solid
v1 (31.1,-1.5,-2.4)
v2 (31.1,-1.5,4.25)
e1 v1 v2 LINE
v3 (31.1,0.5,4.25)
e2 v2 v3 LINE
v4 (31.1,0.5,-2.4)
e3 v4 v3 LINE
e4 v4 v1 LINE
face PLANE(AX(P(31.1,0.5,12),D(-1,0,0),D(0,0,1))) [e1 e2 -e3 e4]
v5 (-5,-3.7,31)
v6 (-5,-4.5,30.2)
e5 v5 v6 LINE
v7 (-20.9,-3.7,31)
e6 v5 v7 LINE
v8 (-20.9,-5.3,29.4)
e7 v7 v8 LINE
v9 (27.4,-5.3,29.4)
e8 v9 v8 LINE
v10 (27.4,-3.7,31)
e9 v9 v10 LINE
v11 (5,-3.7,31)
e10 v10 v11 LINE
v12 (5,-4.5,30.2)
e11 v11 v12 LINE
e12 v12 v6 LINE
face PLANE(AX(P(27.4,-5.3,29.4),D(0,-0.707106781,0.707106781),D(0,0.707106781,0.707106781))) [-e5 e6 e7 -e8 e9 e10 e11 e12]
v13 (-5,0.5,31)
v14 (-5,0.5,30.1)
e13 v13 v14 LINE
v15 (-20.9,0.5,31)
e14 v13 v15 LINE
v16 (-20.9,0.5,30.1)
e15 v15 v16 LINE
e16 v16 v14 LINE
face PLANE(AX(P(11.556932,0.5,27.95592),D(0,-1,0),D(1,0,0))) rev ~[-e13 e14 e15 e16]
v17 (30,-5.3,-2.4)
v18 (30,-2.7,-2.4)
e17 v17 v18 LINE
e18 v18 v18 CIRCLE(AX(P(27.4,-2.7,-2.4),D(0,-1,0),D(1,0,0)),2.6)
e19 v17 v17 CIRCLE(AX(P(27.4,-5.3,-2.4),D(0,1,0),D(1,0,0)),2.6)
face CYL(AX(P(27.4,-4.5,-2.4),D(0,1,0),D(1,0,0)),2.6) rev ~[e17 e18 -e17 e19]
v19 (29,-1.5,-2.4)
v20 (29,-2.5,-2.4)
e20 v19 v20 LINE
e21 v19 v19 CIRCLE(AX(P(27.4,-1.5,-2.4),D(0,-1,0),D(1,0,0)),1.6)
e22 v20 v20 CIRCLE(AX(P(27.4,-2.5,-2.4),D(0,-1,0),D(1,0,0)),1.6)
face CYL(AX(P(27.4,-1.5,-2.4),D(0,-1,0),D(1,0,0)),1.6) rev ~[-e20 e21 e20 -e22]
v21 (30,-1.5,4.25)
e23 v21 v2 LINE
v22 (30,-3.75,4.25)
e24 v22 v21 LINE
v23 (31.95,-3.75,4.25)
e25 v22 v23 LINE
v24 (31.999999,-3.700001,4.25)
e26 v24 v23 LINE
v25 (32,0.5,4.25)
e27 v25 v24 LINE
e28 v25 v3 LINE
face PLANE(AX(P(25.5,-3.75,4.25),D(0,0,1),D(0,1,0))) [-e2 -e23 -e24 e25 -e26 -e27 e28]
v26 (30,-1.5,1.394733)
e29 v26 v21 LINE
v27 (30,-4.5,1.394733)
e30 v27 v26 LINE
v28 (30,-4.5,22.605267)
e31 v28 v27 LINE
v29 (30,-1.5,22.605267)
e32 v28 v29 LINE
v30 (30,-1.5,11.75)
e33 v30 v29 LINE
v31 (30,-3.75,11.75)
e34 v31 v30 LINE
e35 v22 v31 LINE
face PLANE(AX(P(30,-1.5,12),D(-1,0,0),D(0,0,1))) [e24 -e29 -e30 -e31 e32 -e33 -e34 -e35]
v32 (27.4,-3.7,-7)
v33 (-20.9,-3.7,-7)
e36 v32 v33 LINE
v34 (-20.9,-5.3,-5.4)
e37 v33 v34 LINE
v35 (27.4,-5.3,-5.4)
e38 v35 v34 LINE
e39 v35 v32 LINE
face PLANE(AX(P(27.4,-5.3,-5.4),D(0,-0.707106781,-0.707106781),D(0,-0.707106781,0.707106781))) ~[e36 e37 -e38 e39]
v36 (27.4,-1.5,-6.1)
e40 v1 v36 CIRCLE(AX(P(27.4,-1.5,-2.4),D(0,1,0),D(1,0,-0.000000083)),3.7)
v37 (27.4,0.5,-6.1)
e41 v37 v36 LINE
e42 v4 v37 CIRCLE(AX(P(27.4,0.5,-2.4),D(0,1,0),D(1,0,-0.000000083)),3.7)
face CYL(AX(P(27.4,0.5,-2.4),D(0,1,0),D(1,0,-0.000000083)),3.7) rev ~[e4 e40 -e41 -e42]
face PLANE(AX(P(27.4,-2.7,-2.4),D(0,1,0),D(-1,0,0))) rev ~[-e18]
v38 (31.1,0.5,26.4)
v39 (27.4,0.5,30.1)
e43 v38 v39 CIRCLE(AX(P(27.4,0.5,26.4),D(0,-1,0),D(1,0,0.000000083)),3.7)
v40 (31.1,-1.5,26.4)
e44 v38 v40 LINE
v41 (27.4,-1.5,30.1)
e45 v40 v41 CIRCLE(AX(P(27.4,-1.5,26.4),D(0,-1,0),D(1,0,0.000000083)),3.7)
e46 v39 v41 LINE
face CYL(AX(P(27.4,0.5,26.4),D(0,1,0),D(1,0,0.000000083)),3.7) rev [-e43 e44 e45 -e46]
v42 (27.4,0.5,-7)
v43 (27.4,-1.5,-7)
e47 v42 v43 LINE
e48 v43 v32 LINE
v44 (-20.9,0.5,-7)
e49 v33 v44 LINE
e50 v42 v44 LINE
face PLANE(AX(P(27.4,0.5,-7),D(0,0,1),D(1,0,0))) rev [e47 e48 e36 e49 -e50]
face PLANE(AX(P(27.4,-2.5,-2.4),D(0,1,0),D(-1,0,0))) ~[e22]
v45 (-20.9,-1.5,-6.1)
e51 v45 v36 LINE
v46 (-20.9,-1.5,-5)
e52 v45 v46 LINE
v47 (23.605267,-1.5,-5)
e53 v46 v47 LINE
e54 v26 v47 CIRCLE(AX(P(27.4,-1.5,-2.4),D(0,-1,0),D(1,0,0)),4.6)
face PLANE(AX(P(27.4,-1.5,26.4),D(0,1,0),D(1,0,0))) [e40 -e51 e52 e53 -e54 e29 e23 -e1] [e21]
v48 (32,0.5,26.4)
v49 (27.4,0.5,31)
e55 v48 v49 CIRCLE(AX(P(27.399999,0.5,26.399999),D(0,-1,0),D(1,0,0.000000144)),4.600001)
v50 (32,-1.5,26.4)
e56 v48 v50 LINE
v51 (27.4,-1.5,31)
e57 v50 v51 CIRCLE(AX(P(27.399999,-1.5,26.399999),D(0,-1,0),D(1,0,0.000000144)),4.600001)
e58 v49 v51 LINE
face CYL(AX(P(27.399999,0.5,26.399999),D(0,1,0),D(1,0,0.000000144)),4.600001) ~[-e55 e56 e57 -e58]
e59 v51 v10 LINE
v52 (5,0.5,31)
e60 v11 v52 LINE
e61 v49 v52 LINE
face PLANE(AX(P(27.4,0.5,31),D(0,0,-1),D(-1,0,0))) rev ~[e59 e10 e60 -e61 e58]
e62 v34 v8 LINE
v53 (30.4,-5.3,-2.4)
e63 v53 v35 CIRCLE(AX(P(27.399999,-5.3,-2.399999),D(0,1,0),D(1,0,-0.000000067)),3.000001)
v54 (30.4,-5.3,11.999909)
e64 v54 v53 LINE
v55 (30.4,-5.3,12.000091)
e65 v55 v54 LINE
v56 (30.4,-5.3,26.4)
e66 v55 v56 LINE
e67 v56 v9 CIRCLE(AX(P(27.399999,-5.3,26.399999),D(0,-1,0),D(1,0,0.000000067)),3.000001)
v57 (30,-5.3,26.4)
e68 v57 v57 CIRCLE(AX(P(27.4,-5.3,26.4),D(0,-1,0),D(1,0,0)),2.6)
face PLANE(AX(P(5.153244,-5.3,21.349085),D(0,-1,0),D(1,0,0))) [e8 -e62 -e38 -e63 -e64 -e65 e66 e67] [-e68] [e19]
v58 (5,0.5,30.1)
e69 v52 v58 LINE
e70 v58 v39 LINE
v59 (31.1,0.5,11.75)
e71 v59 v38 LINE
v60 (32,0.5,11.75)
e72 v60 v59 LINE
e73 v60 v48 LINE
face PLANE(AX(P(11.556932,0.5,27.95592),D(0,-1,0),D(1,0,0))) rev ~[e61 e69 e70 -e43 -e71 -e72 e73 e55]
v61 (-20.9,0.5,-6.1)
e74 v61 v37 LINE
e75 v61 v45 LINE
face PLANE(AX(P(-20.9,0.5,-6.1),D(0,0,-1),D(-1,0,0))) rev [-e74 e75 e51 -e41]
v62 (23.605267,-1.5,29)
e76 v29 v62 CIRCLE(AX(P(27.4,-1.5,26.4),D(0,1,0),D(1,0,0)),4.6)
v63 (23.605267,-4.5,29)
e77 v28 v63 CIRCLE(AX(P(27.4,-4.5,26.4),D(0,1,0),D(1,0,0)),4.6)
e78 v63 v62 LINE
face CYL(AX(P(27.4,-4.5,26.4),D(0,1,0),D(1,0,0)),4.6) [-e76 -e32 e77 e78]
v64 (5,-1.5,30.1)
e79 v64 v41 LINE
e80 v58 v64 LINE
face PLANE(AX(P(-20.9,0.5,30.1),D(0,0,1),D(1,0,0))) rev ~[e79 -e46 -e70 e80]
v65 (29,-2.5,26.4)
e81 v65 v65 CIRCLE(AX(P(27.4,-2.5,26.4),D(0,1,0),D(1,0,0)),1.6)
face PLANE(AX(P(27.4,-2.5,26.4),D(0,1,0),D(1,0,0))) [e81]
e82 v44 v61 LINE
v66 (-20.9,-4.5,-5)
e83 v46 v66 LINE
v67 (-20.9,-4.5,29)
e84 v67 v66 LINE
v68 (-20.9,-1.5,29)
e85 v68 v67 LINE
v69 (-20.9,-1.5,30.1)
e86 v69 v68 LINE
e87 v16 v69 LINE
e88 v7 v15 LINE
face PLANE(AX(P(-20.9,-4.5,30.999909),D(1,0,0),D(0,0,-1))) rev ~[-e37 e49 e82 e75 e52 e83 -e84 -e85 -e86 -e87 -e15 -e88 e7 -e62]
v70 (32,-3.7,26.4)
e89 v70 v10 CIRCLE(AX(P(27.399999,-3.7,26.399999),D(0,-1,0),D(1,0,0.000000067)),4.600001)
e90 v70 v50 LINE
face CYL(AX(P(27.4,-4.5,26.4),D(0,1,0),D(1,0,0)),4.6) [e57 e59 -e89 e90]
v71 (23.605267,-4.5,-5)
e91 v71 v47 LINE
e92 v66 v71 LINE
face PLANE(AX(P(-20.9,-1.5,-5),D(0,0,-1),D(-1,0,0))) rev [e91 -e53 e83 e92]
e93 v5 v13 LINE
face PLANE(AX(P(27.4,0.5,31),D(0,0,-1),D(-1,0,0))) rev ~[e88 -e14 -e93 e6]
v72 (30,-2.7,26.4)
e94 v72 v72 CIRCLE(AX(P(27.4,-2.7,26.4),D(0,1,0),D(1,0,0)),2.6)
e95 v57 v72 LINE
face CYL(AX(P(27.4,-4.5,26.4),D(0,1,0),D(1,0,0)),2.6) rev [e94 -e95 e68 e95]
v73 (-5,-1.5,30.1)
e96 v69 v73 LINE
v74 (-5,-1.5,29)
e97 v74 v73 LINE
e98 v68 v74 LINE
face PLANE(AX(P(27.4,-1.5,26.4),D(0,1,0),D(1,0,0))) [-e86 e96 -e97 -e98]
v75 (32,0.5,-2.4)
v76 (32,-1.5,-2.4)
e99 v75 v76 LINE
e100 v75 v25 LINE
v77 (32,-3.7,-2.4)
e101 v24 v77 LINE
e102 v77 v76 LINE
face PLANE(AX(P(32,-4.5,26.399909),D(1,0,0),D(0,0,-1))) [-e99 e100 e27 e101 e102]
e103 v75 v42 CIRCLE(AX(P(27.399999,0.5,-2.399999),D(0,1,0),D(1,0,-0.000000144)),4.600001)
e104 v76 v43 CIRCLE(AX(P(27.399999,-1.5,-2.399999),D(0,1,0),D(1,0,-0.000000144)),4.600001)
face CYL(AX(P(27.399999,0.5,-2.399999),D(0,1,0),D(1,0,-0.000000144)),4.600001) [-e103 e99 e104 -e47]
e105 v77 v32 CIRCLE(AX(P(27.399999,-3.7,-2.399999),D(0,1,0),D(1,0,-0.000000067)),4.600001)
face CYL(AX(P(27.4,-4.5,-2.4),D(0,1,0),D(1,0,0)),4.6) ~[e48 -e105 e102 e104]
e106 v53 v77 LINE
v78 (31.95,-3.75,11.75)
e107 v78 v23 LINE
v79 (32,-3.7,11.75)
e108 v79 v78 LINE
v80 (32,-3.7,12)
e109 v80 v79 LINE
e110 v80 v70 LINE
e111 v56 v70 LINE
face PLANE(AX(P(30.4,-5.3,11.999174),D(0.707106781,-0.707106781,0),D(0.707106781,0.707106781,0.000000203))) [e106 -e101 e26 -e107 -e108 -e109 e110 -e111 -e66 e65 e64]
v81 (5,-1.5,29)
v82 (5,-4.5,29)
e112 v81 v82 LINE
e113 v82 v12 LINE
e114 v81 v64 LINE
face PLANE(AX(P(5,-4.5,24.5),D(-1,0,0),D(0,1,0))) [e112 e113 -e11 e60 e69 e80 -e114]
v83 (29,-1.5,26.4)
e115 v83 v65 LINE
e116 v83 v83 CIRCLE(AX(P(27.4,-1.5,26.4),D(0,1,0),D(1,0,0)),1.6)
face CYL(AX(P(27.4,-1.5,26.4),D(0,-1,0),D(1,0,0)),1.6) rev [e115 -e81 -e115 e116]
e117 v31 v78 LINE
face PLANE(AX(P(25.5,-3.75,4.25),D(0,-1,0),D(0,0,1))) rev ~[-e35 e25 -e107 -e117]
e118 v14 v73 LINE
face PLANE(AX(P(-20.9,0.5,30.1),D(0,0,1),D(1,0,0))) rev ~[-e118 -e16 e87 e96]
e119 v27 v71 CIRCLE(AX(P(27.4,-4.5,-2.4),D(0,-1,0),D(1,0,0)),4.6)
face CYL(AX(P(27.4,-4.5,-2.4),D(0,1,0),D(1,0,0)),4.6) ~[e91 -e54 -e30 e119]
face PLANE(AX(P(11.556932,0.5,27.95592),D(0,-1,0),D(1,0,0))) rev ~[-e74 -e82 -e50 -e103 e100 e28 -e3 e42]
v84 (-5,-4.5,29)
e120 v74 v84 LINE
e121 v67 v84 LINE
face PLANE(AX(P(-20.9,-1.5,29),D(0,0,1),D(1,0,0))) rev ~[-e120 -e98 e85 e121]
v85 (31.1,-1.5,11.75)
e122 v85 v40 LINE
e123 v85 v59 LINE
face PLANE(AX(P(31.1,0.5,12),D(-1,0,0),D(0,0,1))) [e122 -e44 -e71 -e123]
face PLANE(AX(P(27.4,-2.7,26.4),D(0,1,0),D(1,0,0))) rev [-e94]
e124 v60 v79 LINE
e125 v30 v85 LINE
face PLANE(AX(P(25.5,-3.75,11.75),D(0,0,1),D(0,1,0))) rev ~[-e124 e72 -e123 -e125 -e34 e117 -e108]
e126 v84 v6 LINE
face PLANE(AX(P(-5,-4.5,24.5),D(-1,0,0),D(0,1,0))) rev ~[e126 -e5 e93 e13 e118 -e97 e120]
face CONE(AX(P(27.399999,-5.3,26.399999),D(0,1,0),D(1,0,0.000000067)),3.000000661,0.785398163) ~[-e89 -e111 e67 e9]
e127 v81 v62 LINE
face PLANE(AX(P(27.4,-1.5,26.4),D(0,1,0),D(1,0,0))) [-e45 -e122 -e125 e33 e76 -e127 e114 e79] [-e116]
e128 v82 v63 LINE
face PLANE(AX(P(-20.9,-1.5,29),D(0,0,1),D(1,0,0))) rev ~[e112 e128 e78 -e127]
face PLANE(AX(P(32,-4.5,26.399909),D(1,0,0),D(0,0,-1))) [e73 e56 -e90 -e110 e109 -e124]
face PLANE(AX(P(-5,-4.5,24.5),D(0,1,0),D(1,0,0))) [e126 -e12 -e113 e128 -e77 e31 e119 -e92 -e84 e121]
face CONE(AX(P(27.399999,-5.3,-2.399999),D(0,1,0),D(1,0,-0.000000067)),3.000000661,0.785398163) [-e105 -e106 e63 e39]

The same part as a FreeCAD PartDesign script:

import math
import FreeCAD as App
import Part
import Sketcher
Q = App.Units.Quantity

doc = App.newDocument("Part")
params = doc.addObject("Spreadsheet::Sheet", "Params")
for row, (alias, value) in enumerate([
    ("sketch1_width", "7.5 mm"),
    ("pad1_length", "10 mm"),
    ("sketch2_width", "10 mm"),
    ("sketch2_height", "9 mm"),
    ("pad2_length", "10 mm"),
    ("sketch3_diameter", "4 mm"),
    ("pad3_length", "10 mm"),
    ("sketch4_height", "1 mm"),
    ("sketch4_width", "2.3 mm"),
    ("sketch4_width2", "0.7 mm"),
    ("sketch5_radius", "4.600001 mm"),
    ("sketch5_width", "88.3 mm"),
    ("sketch6_diameter", "5.2 mm"),
    ("pad4_length", "0.8 mm"),
    ("sketch7_width", "2 mm"),
    ("sketch7_width2", "3 mm"),
    ("sketch7_height", "1 mm"),
    ("sketch7_width3", "1.6 mm"),
    ("sketch7_height2", "0.2 mm"),
    ("revolution_angle", "360 deg"),
    ("sketch8_radius", "4.600001 mm"),
    ("sketch8_radius2", "2.599999 mm"),
    ("sketch8_width", "48.3 mm"),
    ("sketch8_height", "14.4 mm"),
    ("pad5_length", "3 mm"),
    ("sketch9_radius", "4.600001 mm"),
    ("sketch9_height", "19 mm"),
    ("sketch9_width", "48.3 mm"),
    ("pad6_length", "0.8 mm"),
    ("sketch10_radius", "4.600001 mm"),
    ("sketch10_radius2", "3.7 mm"),
    ("sketch10_width", "48.3 mm"),
    ("sketch10_height", "14.4 mm"),
    ("pad7_length", "2 mm"),
], start=1):
    params.set(f"A{row}", alias)
    params.set(f"B{row}", "=" + value)
    params.setAlias(f"B{row}", alias)

body = doc.addObject("PartDesign::Body", "Body")

sketch1 = doc.addObject("Sketcher::SketchObject", "Sketch")
body.addObject(sketch1)
sketch1.AttachmentSupport = (doc.YZ_Plane, [""])
sketch1.MapMode = "FlatFace"
sketch1.AttachmentOffset = App.Placement(App.Vector(0, 0, 35), App.Rotation())
sketch1.addGeometry([
    Part.LineSegment(App.Vector(-4, 12, 0), App.Vector(-4, 4, 0)),
    Part.LineSegment(App.Vector(-4, 4, 0), App.Vector(4, 4, 0)),
    Part.LineSegment(App.Vector(4, 4, 0), App.Vector(4, 12, 0)),
    Part.LineSegment(App.Vector(4, 12, 0), App.Vector(-4, 12, 0)),
], False)
sketch1.addConstraint([
    Sketcher.Constraint("Coincident", 0, 2, 1, 1),
    Sketcher.Constraint("Coincident", 1, 2, 2, 1),
    Sketcher.Constraint("Coincident", 2, 2, 3, 1),
    Sketcher.Constraint("Coincident", 3, 2, 0, 1),
    Sketcher.Constraint("Vertical", 0),
    Sketcher.Constraint("Horizontal", 1),
    Sketcher.Constraint("Vertical", 2),
    Sketcher.Constraint("Horizontal", 3),
    Sketcher.Constraint("Equal", 3, 0),
    Sketcher.Constraint("DistanceX", 1, 1, 1, 2, Q("7.5 mm")),
    Sketcher.Constraint("DistanceX", 0, 2, -1, 1, Q("3.75 mm")),
    Sketcher.Constraint("DistanceY", -1, 1, 0, 2, Q("4.25 mm")),
])
sketch1.setExpression("Constraints[9]", "Params.sketch1_width")
pad1 = doc.addObject("PartDesign::Pad", "Pad")
body.addObject(pad1)
pad1.Profile = sketch1
pad1.setExpression("Length", "Params.pad1_length")
body2 = doc.addObject("PartDesign::Body", "Body001")
doc.recompute()

body.Placement = App.Placement(App.Vector(-9.5, 0, 0), App.Rotation(App.Vector(0, 0, 1), 0))
boolean = doc.addObject("PartDesign::Boolean", "Boolean")
body2.addObject(boolean)
boolean.Type = "Fuse"
boolean.addObjects([body])
body3 = doc.addObject("PartDesign::Body", "Body002")

sketch2 = doc.addObject("Sketcher::SketchObject", "Sketch001")
body3.addObject(sketch2)
sketch2.AttachmentSupport = (doc.getObject("XY_Plane002"), [""])
sketch2.MapMode = "FlatFace"
sketch2.AttachmentOffset = App.Placement(App.Vector(0, 0, 40), App.Rotation())
sketch2.addGeometry([
    Part.LineSegment(App.Vector(-5, 4, 0), App.Vector(-5, -4, 0)),
    Part.LineSegment(App.Vector(-5, -4, 0), App.Vector(5, -4, 0)),
    Part.LineSegment(App.Vector(5, -4, 0), App.Vector(5, 4, 0)),
    Part.LineSegment(App.Vector(5, 4, 0), App.Vector(-5, 4, 0)),
], False)
sketch2.addConstraint([
    Sketcher.Constraint("Coincident", 0, 2, 1, 1),
    Sketcher.Constraint("Coincident", 1, 2, 2, 1),
    Sketcher.Constraint("Coincident", 2, 2, 3, 1),
    Sketcher.Constraint("Coincident", 3, 2, 0, 1),
    Sketcher.Constraint("Vertical", 0),
    Sketcher.Constraint("Horizontal", 1),
    Sketcher.Constraint("Vertical", 2),
    Sketcher.Constraint("Horizontal", 3),
    Sketcher.Constraint("Symmetric", 0, 2, 2, 2, -1, 1),
    Sketcher.Constraint("DistanceX", 1, 1, 1, 2, Q("10 mm")),
    Sketcher.Constraint("DistanceY", 0, 2, 0, 1, Q("9 mm")),
])
sketch2.setExpression("Constraints[9]", "Params.sketch2_width")
sketch2.setExpression("Constraints[10]", "Params.sketch2_height")
pad2 = doc.addObject("PartDesign::Pad", "Pad001")
body3.addObject(pad2)
pad2.Profile = sketch2
pad2.setExpression("Length", "Params.pad2_length")
body4 = doc.addObject("PartDesign::Body", "Body003")
doc.recompute()

body3.Placement = App.Placement(App.Vector(0, 0, -15.5), App.Rotation(App.Vector(0, 0, 1), 0))
boolean2 = doc.addObject("PartDesign::Boolean", "Boolean001")
body4.addObject(boolean2)
boolean2.Type = "Fuse"
boolean2.addObjects([body3])
body5 = doc.addObject("PartDesign::Body", "Body004")
body5.AllowCompound = True

sketch3 = doc.addObject("Sketcher::SketchObject", "Sketch002")
body5.addObject(sketch3)
sketch3.AttachmentSupport = (doc.getObject("YZ_Plane004"), [""])
sketch3.MapMode = "FlatFace"
sketch3.AttachmentOffset = App.Placement(App.Vector(0, 0, -92.5), App.Rotation())
sketch3.addGeometry(Part.Circle(App.Vector(0, 12, 0), App.Vector(0, 0, 1), 2), False)
sketch3.addConstraint([
    Sketcher.Constraint("PointOnObject", 0, 3, -2),
    Sketcher.Constraint("Diameter", 0, Q("4 mm")),
    Sketcher.Constraint("DistanceY", -1, 1, 0, 3, Q("12 mm")),
])
sketch3.setExpression("Constraints[1]", "Params.sketch3_diameter")
pad3 = doc.addObject("PartDesign::Pad", "Pad002")
body5.addObject(pad3)
pad3.Profile = sketch3
pad3.setExpression("Length", "Params.pad3_length")
pad3.Reversed = True
doc.recompute()

boolean3 = doc.addObject("PartDesign::Boolean", "Boolean002")
body5.addObject(boolean3)
boolean3.Type = "Fuse"
boolean3.addObjects([body2])
doc.recompute()

boolean4 = doc.addObject("PartDesign::Boolean", "Boolean003")
body5.addObject(boolean4)
boolean4.Type = "Fuse"
boolean4.addObjects([body4])
body6 = doc.addObject("PartDesign::Body", "Body005")

sketch4 = doc.addObject("Sketcher::SketchObject", "Sketch003")
body6.addObject(sketch4)
sketch4.AttachmentSupport = (doc.getObject("YZ_Plane005"), [""])
sketch4.MapMode = "FlatFace"
sketch4.addGeometry([
    Part.LineSegment(App.Vector(-5.3, 29.4, 0), App.Vector(-3.7, 31, 0)),
    Part.LineSegment(App.Vector(-3.7, 31, 0), App.Vector(-3.7, 32, 0)),
    Part.LineSegment(App.Vector(-3.7, 32, 0), App.Vector(-6, 32, 0)),
    Part.LineSegment(App.Vector(-6, 32, 0), App.Vector(-6, 29.4, 0)),
    Part.LineSegment(App.Vector(-6, 29.4, 0), App.Vector(-5.3, 29.4, 0)),
], False)
sketch4.addConstraint([
    Sketcher.Constraint("Coincident", 0, 2, 1, 1),
    Sketcher.Constraint("Coincident", 1, 2, 2, 1),
    Sketcher.Constraint("Coincident", 2, 2, 3, 1),
    Sketcher.Constraint("Coincident", 3, 2, 4, 1),
    Sketcher.Constraint("Coincident", 4, 2, 0, 1),
    Sketcher.Constraint("Vertical", 1),
    Sketcher.Constraint("Horizontal", 2),
    Sketcher.Constraint("Vertical", 3),
    Sketcher.Constraint("Horizontal", 4),
    Sketcher.Constraint("DistanceY", 1, 1, 1, 2, Q("1 mm")),
    Sketcher.Constraint("Angle", 0, Q("45 deg")),
    Sketcher.Constraint("DistanceX", 2, 2, 2, 1, Q("2.3 mm")),
    Sketcher.Constraint("DistanceX", 4, 1, 4, 2, Q("0.7 mm")),
    Sketcher.Constraint("DistanceY", -1, 1, 0, 2, Q("31 mm")),
    Sketcher.Constraint("DistanceX", 2, 2, -1, 1, Q("6 mm")),
])
sketch4.setExpression("Constraints[9]", "Params.sketch4_height")
sketch4.setExpression("Constraints[11]", "Params.sketch4_width")
sketch4.setExpression("Constraints[12]", "Params.sketch4_width2")

sketch5 = doc.addObject("Sketcher::SketchObject", "Sketch004")
body6.addObject(sketch5)
sketch5.AttachmentSupport = (doc.getObject("XZ_Plane005"), [""])
sketch5.MapMode = "FlatFace"
sketch5.AttachmentOffset = App.Placement(App.Vector(0, 0, 10), App.Rotation())
sketch5.addGeometry([
    Part.LineSegment(App.Vector(32, 12, 0), App.Vector(32, 26.4, 0)),
    Part.ArcOfCircle(Part.Circle(App.Vector(27.4, 26.4, 0), App.Vector(0, 0, 1), 4.6), math.radians(0), math.radians(90)),
    Part.LineSegment(App.Vector(27.4, 31, 0), App.Vector(-60.9, 31, 0)),
], False)
sketch5.addConstraint([
    Sketcher.Constraint("Tangent", 0, 2, 1, 1),
    Sketcher.Constraint("Tangent", 1, 2, 2, 1),
    Sketcher.Constraint("Vertical", 0),
    Sketcher.Constraint("Horizontal", 2),
    Sketcher.Constraint("Radius", 1, Q("4.600001 mm")),
    Sketcher.Constraint("DistanceX", 2, 2, 2, 1, Q("88.3 mm")),
    Sketcher.Constraint("DistanceX", -1, 1, 0, 1, Q("32 mm")),
    Sketcher.Constraint("DistanceY", -1, 1, 1, 2, Q("31 mm")),
    Sketcher.Constraint("DistanceY", 0, 1, 0, 2, Q("14.400826 mm")),
])
sketch5.setExpression("Constraints[4]", "Params.sketch5_radius")
sketch5.setExpression("Constraints[5]", "Params.sketch5_width")
doc.recompute()

additivepipe = doc.addObject("PartDesign::AdditivePipe", "AdditivePipe")
body6.addObject(additivepipe)
additivepipe.Profile = sketch4
additivepipe.Spine = (sketch5, ["Edge1", "Edge2", "Edge3"])
body7 = doc.addObject("PartDesign::Body", "Body006")

sketch6 = doc.addObject("Sketcher::SketchObject", "Sketch005")
body7.addObject(sketch6)
sketch6.AttachmentSupport = (doc.getObject("XZ_Plane006"), [""])
sketch6.MapMode = "FlatFace"
sketch6.AttachmentOffset = App.Placement(App.Vector(0, 0, 10), App.Rotation())
sketch6.addGeometry(Part.Circle(App.Vector(27.4, 26.4, 0), App.Vector(0, 0, 1), 2.6), False)
sketch6.addConstraint([
    Sketcher.Constraint("Diameter", 0, Q("5.2 mm")),
    Sketcher.Constraint("DistanceX", -1, 1, 0, 3, Q("27.4 mm")),
    Sketcher.Constraint("DistanceY", -1, 1, 0, 3, Q("26.4 mm")),
])
sketch6.setExpression("Constraints[0]", "Params.sketch6_diameter")
pad4 = doc.addObject("PartDesign::Pad", "Pad003")
body7.addObject(pad4)
pad4.Profile = sketch6
pad4.setExpression("Length", "Params.pad4_length")
body8 = doc.addObject("PartDesign::Body", "Body007")
body8.AllowCompound = True
doc.recompute()

body7.Placement = App.Placement(App.Vector(0, 5.5, 0), App.Rotation(App.Vector(0, 0, 1), 0))
boolean5 = doc.addObject("PartDesign::Boolean", "Boolean004")
body8.addObject(boolean5)
boolean5.Type = "Fuse"
boolean5.addObjects([body7])
doc.recompute()

boolean6 = doc.addObject("PartDesign::Boolean", "Boolean005")
body8.addObject(boolean6)
boolean6.Type = "Fuse"
boolean6.addObjects([body6])
body9 = doc.addObject("PartDesign::Body", "Body008")

sketch7 = doc.addObject("Sketcher::SketchObject", "Sketch006")
body9.addObject(sketch7)
sketch7.AttachmentSupport = (doc.getObject("XY_Plane008"), [""])
sketch7.MapMode = "FlatFace"
sketch7.addGeometry([
    Part.LineSegment(App.Vector(1.6, 3, 0), App.Vector(1.6, 2, 0)),
    Part.LineSegment(App.Vector(1.6, 2, 0), App.Vector(0, 2, 0)),
    Part.LineSegment(App.Vector(0, 2, 0), App.Vector(0, 1.8, 0)),
    Part.LineSegment(App.Vector(0, 1.8, 0), App.Vector(2.6, 1.8, 0)),
    Part.LineSegment(App.Vector(2.6, 1.8, 0), App.Vector(2.6, 0, 0)),
    Part.LineSegment(App.Vector(2.6, 0, 0), App.Vector(4.6, 0, 0)),
    Part.LineSegment(App.Vector(4.6, 0, 0), App.Vector(4.6, 3, 0)),
    Part.LineSegment(App.Vector(4.6, 3, 0), App.Vector(1.6, 3, 0)),
], False)
sketch7.addConstraint([
    Sketcher.Constraint("Coincident", 0, 2, 1, 1),
    Sketcher.Constraint("Coincident", 1, 2, 2, 1),
    Sketcher.Constraint("Coincident", 2, 2, 3, 1),
    Sketcher.Constraint("Coincident", 3, 2, 4, 1),
    Sketcher.Constraint("Coincident", 4, 2, 5, 1),
    Sketcher.Constraint("Coincident", 5, 2, 6, 1),
    Sketcher.Constraint("Coincident", 6, 2, 7, 1),
    Sketcher.Constraint("Coincident", 7, 2, 0, 1),
    Sketcher.Constraint("Vertical", 0),
    Sketcher.Constraint("Horizontal", 1),
    Sketcher.Constraint("Vertical", 2),
    Sketcher.Constraint("Horizontal", 3),
    Sketcher.Constraint("Vertical", 4),
    Sketcher.Constraint("Horizontal", 5),
    Sketcher.Constraint("Vertical", 6),
    Sketcher.Constraint("Horizontal", 7),
    Sketcher.Constraint("PointOnObject", 1, 2, -2),
    Sketcher.Constraint("PointOnObject", 4, 2, -1),
    Sketcher.Constraint("Equal", 7, 6),
    Sketcher.Constraint("DistanceX", 5, 1, 5, 2, Q("2 mm")),
    Sketcher.Constraint("DistanceX", 7, 2, 7, 1, Q("3 mm")),
    Sketcher.Constraint("DistanceY", 0, 2, 0, 1, Q("1 mm")),
    Sketcher.Constraint("DistanceX", 1, 2, 1, 1, Q("1.6 mm")),
    Sketcher.Constraint("DistanceY", 2, 2, 2, 1, Q("0.2 mm")),
])
sketch7.setExpression("Constraints[19]", "Params.sketch7_width")
sketch7.setExpression("Constraints[20]", "Params.sketch7_width2")
sketch7.setExpression("Constraints[21]", "Params.sketch7_height")
sketch7.setExpression("Constraints[22]", "Params.sketch7_width3")
sketch7.setExpression("Constraints[23]", "Params.sketch7_height2")
revolution = doc.addObject("PartDesign::Revolution", "Revolution")
body9.addObject(revolution)
revolution.Profile = sketch7
revolution.ReferenceAxis = (sketch7, ["V_Axis"])
revolution.setExpression("Angle", "Params.revolution_angle")
body10 = doc.addObject("PartDesign::Body", "Body009")
doc.recompute()

body9.Placement = App.Placement(App.Vector(27.4, -4.5, 26.4), App.Rotation(App.Vector(0, 0, 1), 0))
boolean7 = doc.addObject("PartDesign::Boolean", "Boolean006")
body10.addObject(boolean7)
boolean7.Type = "Fuse"
boolean7.addObjects([body9])
body11 = doc.addObject("PartDesign::Body", "Body010")

sketch8 = doc.addObject("Sketcher::SketchObject", "Sketch007")
body11.addObject(sketch8)
sketch8.AttachmentSupport = (doc.getObject("XZ_Plane010"), [""])
sketch8.MapMode = "FlatFace"
sketch8.AttachmentOffset = App.Placement(App.Vector(0, 0, 10), App.Rotation())
sketch8.addGeometry([
    Part.ArcOfCircle(Part.Circle(App.Vector(27.4, 26.4, 0), App.Vector(0, 0, 1), 4.6), math.radians(0), math.radians(90)),
    Part.LineSegment(App.Vector(27.4, 31, 0), App.Vector(-20.9, 31, 0)),
    Part.LineSegment(App.Vector(-20.9, 31, 0), App.Vector(-20.9, 29, 0)),
    Part.LineSegment(App.Vector(-20.9, 29, 0), App.Vector(27.4, 29, 0)),
    Part.ArcOfCircle(Part.Circle(App.Vector(27.4, 26.4, 0), App.Vector(0, 0, 1), 2.6), math.radians(0), math.radians(90)),
    Part.LineSegment(App.Vector(30, 26.4, 0), App.Vector(30, 12, 0)),
    Part.LineSegment(App.Vector(30, 12, 0), App.Vector(32, 12, 0)),
    Part.LineSegment(App.Vector(32, 12, 0), App.Vector(32, 26.4, 0)),
], False)
sketch8.addConstraint([
    Sketcher.Constraint("Tangent", 0, 2, 1, 1),
    Sketcher.Constraint("Coincident", 1, 2, 2, 1),
    Sketcher.Constraint("Coincident", 2, 2, 3, 1),
    Sketcher.Constraint("Tangent", 3, 2, 4, 2),
    Sketcher.Constraint("Tangent", 4, 1, 5, 1),
    Sketcher.Constraint("Coincident", 5, 2, 6, 1),
    Sketcher.Constraint("Coincident", 6, 2, 7, 1),
    Sketcher.Constraint("Tangent", 7, 2, 0, 1),
    Sketcher.Constraint("Horizontal", 1),
    Sketcher.Constraint("Vertical", 2),
    Sketcher.Constraint("Horizontal", 3),
    Sketcher.Constraint("Vertical", 5),
    Sketcher.Constraint("Horizontal", 6),
    Sketcher.Constraint("Vertical", 7),
    Sketcher.Constraint("Coincident", 4, 3, 0, 3),
    Sketcher.Constraint("Radius", 0, Q("4.600001 mm")),
    Sketcher.Constraint("Radius", 4, Q("2.599999 mm")),
    Sketcher.Constraint("DistanceX", 1, 2, 1, 1, Q("48.3 mm")),
    Sketcher.Constraint("DistanceY", 5, 2, 5, 1, Q("14.4 mm")),
    Sketcher.Constraint("DistanceY", -1, 1, 0, 2, Q("31 mm")),
    Sketcher.Constraint("DistanceX", -1, 1, 4, 1, Q("30 mm")),
])
sketch8.setExpression("Constraints[15]", "Params.sketch8_radius")
sketch8.setExpression("Constraints[16]", "Params.sketch8_radius2")
sketch8.setExpression("Constraints[17]", "Params.sketch8_width")
sketch8.setExpression("Constraints[18]", "Params.sketch8_height")
pad5 = doc.addObject("PartDesign::Pad", "Pad004")
body11.addObject(pad5)
pad5.Profile = sketch8
pad5.setExpression("Length", "Params.pad5_length")
body12 = doc.addObject("PartDesign::Body", "Body011")
doc.recompute()

body11.Placement = App.Placement(App.Vector(0, 8.5, 0), App.Rotation(App.Vector(0, 0, 1), 0))
boolean8 = doc.addObject("PartDesign::Boolean", "Boolean007")
body12.addObject(boolean8)
boolean8.Type = "Fuse"
boolean8.addObjects([body11])
body13 = doc.addObject("PartDesign::Body", "Body012")

sketch9 = doc.addObject("Sketcher::SketchObject", "Sketch008")
body13.addObject(sketch9)
sketch9.AttachmentSupport = (doc.getObject("XZ_Plane012"), [""])
sketch9.MapMode = "FlatFace"
sketch9.AttachmentOffset = App.Placement(App.Vector(0, 0, 10), App.Rotation())
sketch9.addGeometry([
    Part.ArcOfCircle(Part.Circle(App.Vector(27.4, 26.4, 0), App.Vector(0, 0, 1), 4.6), math.radians(0), math.radians(90)),
    Part.LineSegment(App.Vector(27.4, 31, 0), App.Vector(-20.9, 31, 0)),
    Part.LineSegment(App.Vector(-20.9, 31, 0), App.Vector(-20.9, 12, 0)),
    Part.LineSegment(App.Vector(-20.9, 12, 0), App.Vector(32, 12, 0)),
    Part.LineSegment(App.Vector(32, 12, 0), App.Vector(32, 26.4, 0)),
], False)
sketch9.addConstraint([
    Sketcher.Constraint("Tangent", 0, 2, 1, 1),
    Sketcher.Constraint("Coincident", 1, 2, 2, 1),
    Sketcher.Constraint("Coincident", 2, 2, 3, 1),
    Sketcher.Constraint("Coincident", 3, 2, 4, 1),
    Sketcher.Constraint("Tangent", 4, 2, 0, 1),
    Sketcher.Constraint("Horizontal", 1),
    Sketcher.Constraint("Vertical", 2),
    Sketcher.Constraint("Horizontal", 3),
    Sketcher.Constraint("Vertical", 4),
    Sketcher.Constraint("Radius", 0, Q("4.600001 mm")),
    Sketcher.Constraint("DistanceY", 2, 2, 2, 1, Q("19 mm")),
    Sketcher.Constraint("DistanceX", 1, 2, 1, 1, Q("48.3 mm")),
    Sketcher.Constraint("DistanceX", -1, 1, 3, 2, Q("32 mm")),
    Sketcher.Constraint("DistanceY", -1, 1, 0, 3, Q("26.399908 mm")),
])
sketch9.setExpression("Constraints[9]", "Params.sketch9_radius")
sketch9.setExpression("Constraints[10]", "Params.sketch9_height")
sketch9.setExpression("Constraints[11]", "Params.sketch9_width")
pad6 = doc.addObject("PartDesign::Pad", "Pad005")
body13.addObject(pad6)
pad6.Profile = sketch9
pad6.setExpression("Length", "Params.pad6_length")
body14 = doc.addObject("PartDesign::Body", "Body013")
doc.recompute()

body13.Placement = App.Placement(App.Vector(0, 5.5, 0), App.Rotation(App.Vector(0, 0, 1), 0))
boolean9 = doc.addObject("PartDesign::Boolean", "Boolean008")
body14.addObject(boolean9)
boolean9.Type = "Fuse"
boolean9.addObjects([body13])
body15 = doc.addObject("PartDesign::Body", "Body014")

sketch10 = doc.addObject("Sketcher::SketchObject", "Sketch009")
body15.addObject(sketch10)
sketch10.AttachmentSupport = (doc.getObject("XZ_Plane014"), [""])
sketch10.MapMode = "FlatFace"
sketch10.AttachmentOffset = App.Placement(App.Vector(0, 0, 10), App.Rotation())
sketch10.addGeometry([
    Part.ArcOfCircle(Part.Circle(App.Vector(27.4, 26.4, 0), App.Vector(0, 0, 1), 4.6), math.radians(0), math.radians(90)),
    Part.LineSegment(App.Vector(27.4, 31, 0), App.Vector(-20.9, 31, 0)),
    Part.LineSegment(App.Vector(-20.9, 31, 0), App.Vector(-20.9, 30.1, 0)),
    Part.LineSegment(App.Vector(-20.9, 30.1, 0), App.Vector(27.4, 30.1, 0)),
    Part.ArcOfCircle(Part.Circle(App.Vector(27.4, 26.4, 0), App.Vector(0, 0, 1), 3.7), math.radians(0), math.radians(90)),
    Part.LineSegment(App.Vector(31.1, 26.4, 0), App.Vector(31.1, 12, 0)),
    Part.LineSegment(App.Vector(31.1, 12, 0), App.Vector(32, 12, 0)),
    Part.LineSegment(App.Vector(32, 12, 0), App.Vector(32, 26.4, 0)),
], False)
sketch10.addConstraint([
    Sketcher.Constraint("Tangent", 0, 2, 1, 1),
    Sketcher.Constraint("Coincident", 1, 2, 2, 1),
    Sketcher.Constraint("Coincident", 2, 2, 3, 1),
    Sketcher.Constraint("Tangent", 3, 2, 4, 2),
    Sketcher.Constraint("Tangent", 4, 1, 5, 1),
    Sketcher.Constraint("Coincident", 5, 2, 6, 1),
    Sketcher.Constraint("Coincident", 6, 2, 7, 1),
    Sketcher.Constraint("Tangent", 7, 2, 0, 1),
    Sketcher.Constraint("Horizontal", 1),
    Sketcher.Constraint("Vertical", 2),
    Sketcher.Constraint("Horizontal", 3),
    Sketcher.Constraint("Vertical", 5),
    Sketcher.Constraint("Horizontal", 6),
    Sketcher.Constraint("Vertical", 7),
    Sketcher.Constraint("Coincident", 4, 3, 0, 3),
    Sketcher.Constraint("Radius", 0, Q("4.600001 mm")),
    Sketcher.Constraint("Radius", 4, Q("3.7 mm")),
    Sketcher.Constraint("DistanceX", 1, 2, 1, 1, Q("48.3 mm")),
    Sketcher.Constraint("DistanceY", 5, 2, 5, 1, Q("14.4 mm")),
    Sketcher.Constraint("DistanceY", -1, 1, 0, 2, Q("31 mm")),
    Sketcher.Constraint("DistanceX", -1, 1, 6, 2, Q("32 mm")),
])
sketch10.setExpression("Constraints[15]", "Params.sketch10_radius")
sketch10.setExpression("Constraints[16]", "Params.sketch10_radius2")
sketch10.setExpression("Constraints[17]", "Params.sketch10_width")
sketch10.setExpression("Constraints[18]", "Params.sketch10_height")
pad7 = doc.addObject("PartDesign::Pad", "Pad006")
body15.addObject(pad7)
pad7.Profile = sketch10
pad7.setExpression("Length", "Params.pad7_length")
body16 = doc.addObject("PartDesign::Body", "Body015")
doc.recompute()

body15.Placement = App.Placement(App.Vector(0, 10.5, 0), App.Rotation(App.Vector(0, 0, 1), 0))
boolean10 = doc.addObject("PartDesign::Boolean", "Boolean009")
body16.addObject(boolean10)
boolean10.Type = "Fuse"
boolean10.addObjects([body15])
doc.recompute()

boolean11 = doc.addObject("PartDesign::Boolean", "Boolean010")
body16.addObject(boolean11)
boolean11.Type = "Fuse"
boolean11.addObjects([body10])
doc.recompute()

boolean12 = doc.addObject("PartDesign::Boolean", "Boolean011")
body16.addObject(boolean12)
boolean12.Type = "Fuse"
boolean12.addObjects([body12])
doc.recompute()

boolean13 = doc.addObject("PartDesign::Boolean", "Boolean012")
body16.addObject(boolean13)
boolean13.Type = "Fuse"
boolean13.addObjects([body14])
doc.recompute()

boolean14 = doc.addObject("PartDesign::Boolean", "Boolean013")
body16.addObject(boolean14)
boolean14.Type = "Cut"
boolean14.addObjects([body8])
body17 = doc.addObject("PartDesign::Body", "Body016")
doc.recompute()

mirroring = doc.addObject("Part::Mirroring", "Mirroring")
mirroring.Source = body16
mirroring.Base = App.Vector(0, 0, 12)
mirroring.Normal = App.Vector(0, 0, 1)
body17.BaseFeature = mirroring
doc.recompute()

boolean15 = doc.addObject("PartDesign::Boolean", "Boolean014")
body17.addObject(boolean15)
boolean15.Type = "Fuse"
boolean15.addObjects([body16])
doc.recompute()

boolean16 = doc.addObject("PartDesign::Boolean", "Boolean015")
body17.addObject(boolean16)
boolean16.Type = "Cut"
boolean16.addObjects([body5])
mirroring.Visibility = False

doc.recompute()
